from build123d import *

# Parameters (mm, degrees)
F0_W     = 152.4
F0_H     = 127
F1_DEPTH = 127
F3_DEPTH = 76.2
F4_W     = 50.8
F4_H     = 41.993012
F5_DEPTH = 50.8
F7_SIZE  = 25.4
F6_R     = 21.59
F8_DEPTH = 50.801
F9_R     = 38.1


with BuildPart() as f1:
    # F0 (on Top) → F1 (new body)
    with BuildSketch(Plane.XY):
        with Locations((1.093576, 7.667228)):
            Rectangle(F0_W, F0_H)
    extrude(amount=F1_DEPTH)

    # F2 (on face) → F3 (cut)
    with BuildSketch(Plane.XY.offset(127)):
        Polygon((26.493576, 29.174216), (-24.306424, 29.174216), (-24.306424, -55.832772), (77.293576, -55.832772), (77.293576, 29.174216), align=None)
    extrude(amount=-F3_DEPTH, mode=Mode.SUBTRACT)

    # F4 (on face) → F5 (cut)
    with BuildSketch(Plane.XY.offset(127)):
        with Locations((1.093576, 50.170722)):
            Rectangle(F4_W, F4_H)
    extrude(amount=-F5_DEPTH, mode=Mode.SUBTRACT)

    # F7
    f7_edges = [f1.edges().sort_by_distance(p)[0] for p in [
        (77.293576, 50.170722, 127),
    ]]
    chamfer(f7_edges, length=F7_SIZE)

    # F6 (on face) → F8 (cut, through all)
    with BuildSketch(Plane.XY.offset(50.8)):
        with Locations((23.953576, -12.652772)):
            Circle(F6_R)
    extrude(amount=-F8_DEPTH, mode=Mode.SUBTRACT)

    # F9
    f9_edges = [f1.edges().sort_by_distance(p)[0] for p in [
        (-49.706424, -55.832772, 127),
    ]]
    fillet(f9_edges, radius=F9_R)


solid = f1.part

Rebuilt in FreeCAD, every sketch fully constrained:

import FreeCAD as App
import Part
import Sketcher
from FreeCAD import Vector
Q = App.Units.Quantity


def edges_at(feature, points):
    """Names of the edges that pass closest to the given points."""
    edges = feature.Shape.Edges
    near = lambda p: min(range(len(edges)), key=lambda i: edges[i].distToShape(Part.Vertex(*p))[0])
    return sorted({f"Edge{near(p) + 1}" for p in points})


def add_polygon(sketch, points):
    """Adds a closed chain of lines whose ends are joined by coincident constraints."""
    first, n = sketch.GeometryCount, len(points)
    for a, b in zip(points, points[1:] + points[:1]):
        sketch.addGeometry(Part.LineSegment(App.Vector(*a, 0), App.Vector(*b, 0)), False)
    for i in range(n):
        sketch.addConstraint(Sketcher.Constraint("Coincident", first + i, 2, first + (i + 1) % n, 1))

doc = App.newDocument("Part")
body = doc.addObject("PartDesign::Body", "Body")

# Sketch on XY plane
sketch1 = body.newObject("Sketcher::SketchObject", "Sketch")
sketch1.AttachmentSupport = (doc.getObject("XY_Plane"), [""])
sketch1.MapMode = "FlatFace"
add_polygon(sketch1, [(-75, 71), (-75, -56), (77, -56), (77, 71)])  # lines 0-3
sketch1.addConstraint([
    Sketcher.Constraint("Vertical", 0),
    Sketcher.Constraint("Horizontal", 1),
    Sketcher.Constraint("Vertical", 2),
    Sketcher.Constraint("Horizontal", 3),
    Sketcher.Constraint("DistanceX", 1, 1, 1, 2, Q("6 in")),
    Sketcher.Constraint("DistanceY", 0, 2, 0, 1, Q("5 in")),
    Sketcher.Constraint("DistanceX", 0, 2, -1, 1, 75.106424),
    Sketcher.Constraint("DistanceY", 0, 2, -1, 1, 55.832772),
])
pad1 = body.newObject("PartDesign::Pad", "Pad")
pad1.Profile = sketch1
pad1.Length = Q("5 in")

# Sketch on XY plane
sketch2 = body.newObject("Sketcher::SketchObject", "Sketch001")
sketch2.AttachmentSupport = (doc.getObject("XY_Plane"), [""])
sketch2.MapMode = "FlatFace"
sketch2.AttachmentOffset = App.Placement(Vector(0, 0, 5 * 25.4), App.Rotation())
add_polygon(sketch2, [(-24, 29), (-24, -56), (77, -56), (77, 29)])  # lines 0-3
sketch2.addConstraint([
    Sketcher.Constraint("Vertical", 0),
    Sketcher.Constraint("Horizontal", 1),
    Sketcher.Constraint("Vertical", 2),
    Sketcher.Constraint("Horizontal", 3),
    Sketcher.Constraint("DistanceX", 1, 1, 1, 2, Q("4 in")),
    Sketcher.Constraint("DistanceY", 0, 2, 0, 1, 85.006988),
    Sketcher.Constraint("DistanceX", 0, 2, -1, 1, 24.306424),
    Sketcher.Constraint("DistanceY", 0, 2, -1, 1, 55.832772),
])
pocket1 = body.newObject("PartDesign::Pocket", "Pocket")
pocket1.Profile = sketch2
pocket1.Length = Q("3 in")

# Sketch on XY plane
sketch3 = body.newObject("Sketcher::SketchObject", "Sketch002")
sketch3.AttachmentSupport = (doc.getObject("XY_Plane"), [""])
sketch3.MapMode = "FlatFace"
sketch3.AttachmentOffset = App.Placement(Vector(0, 0, 5 * 25.4), App.Rotation())
add_polygon(sketch3, [(-24, 71), (-24, 29), (26, 29), (26, 71)])  # lines 0-3
sketch3.addConstraint([
    Sketcher.Constraint("Vertical", 0),
    Sketcher.Constraint("Horizontal", 1),
    Sketcher.Constraint("Vertical", 2),
    Sketcher.Constraint("Horizontal", 3),
    Sketcher.Constraint("DistanceX", 1, 1, 1, 2, Q("2 in")),
    Sketcher.Constraint("DistanceY", 0, 2, 0, 1, 41.993012),
    Sketcher.Constraint("DistanceX", 0, 2, -1, 1, 24.306424),
    Sketcher.Constraint("DistanceY", -1, 1, 0, 2, 29.174216),
])
pocket2 = body.newObject("PartDesign::Pocket", "Pocket001")
pocket2.Profile = sketch3
pocket2.Length = Q("2 in")
doc.recompute()

chamfer = body.newObject("PartDesign::Chamfer", "Chamfer")
chamfer.Base = (pocket2, edges_at(pocket2, [(77.294, 50.171, 127)]))
chamfer.Size = Q("1 in")

# Sketch on XY plane
sketch4 = body.newObject("Sketcher::SketchObject", "Sketch003")
sketch4.AttachmentSupport = (doc.getObject("XY_Plane"), [""])
sketch4.MapMode = "FlatFace"
sketch4.AttachmentOffset = App.Placement(Vector(0, 0, 2 * 25.4), App.Rotation())
sketch4.addGeometry(Part.Circle(Vector(24, -13, 0), Vector(0, 0, 1), 22), False)
sketch4.addConstraint([
    Sketcher.Constraint("Diameter", 0, Q("1.7 in")),
    Sketcher.Constraint("DistanceX", -1, 1, 0, 3, 23.953576),
    Sketcher.Constraint("DistanceY", 0, 3, -1, 1, 12.652772),
])
pocket3 = body.newObject("PartDesign::Pocket", "Pocket002")
pocket3.Profile = sketch4
pocket3.Type = "ThroughAll"
doc.recompute()

fillet = body.newObject("PartDesign::Fillet", "Fillet")
fillet.Base = (pocket3, edges_at(pocket3, [(-49.706, -55.833, 127)]))
fillet.Radius = Q("1.5 in")

doc.recompute()
